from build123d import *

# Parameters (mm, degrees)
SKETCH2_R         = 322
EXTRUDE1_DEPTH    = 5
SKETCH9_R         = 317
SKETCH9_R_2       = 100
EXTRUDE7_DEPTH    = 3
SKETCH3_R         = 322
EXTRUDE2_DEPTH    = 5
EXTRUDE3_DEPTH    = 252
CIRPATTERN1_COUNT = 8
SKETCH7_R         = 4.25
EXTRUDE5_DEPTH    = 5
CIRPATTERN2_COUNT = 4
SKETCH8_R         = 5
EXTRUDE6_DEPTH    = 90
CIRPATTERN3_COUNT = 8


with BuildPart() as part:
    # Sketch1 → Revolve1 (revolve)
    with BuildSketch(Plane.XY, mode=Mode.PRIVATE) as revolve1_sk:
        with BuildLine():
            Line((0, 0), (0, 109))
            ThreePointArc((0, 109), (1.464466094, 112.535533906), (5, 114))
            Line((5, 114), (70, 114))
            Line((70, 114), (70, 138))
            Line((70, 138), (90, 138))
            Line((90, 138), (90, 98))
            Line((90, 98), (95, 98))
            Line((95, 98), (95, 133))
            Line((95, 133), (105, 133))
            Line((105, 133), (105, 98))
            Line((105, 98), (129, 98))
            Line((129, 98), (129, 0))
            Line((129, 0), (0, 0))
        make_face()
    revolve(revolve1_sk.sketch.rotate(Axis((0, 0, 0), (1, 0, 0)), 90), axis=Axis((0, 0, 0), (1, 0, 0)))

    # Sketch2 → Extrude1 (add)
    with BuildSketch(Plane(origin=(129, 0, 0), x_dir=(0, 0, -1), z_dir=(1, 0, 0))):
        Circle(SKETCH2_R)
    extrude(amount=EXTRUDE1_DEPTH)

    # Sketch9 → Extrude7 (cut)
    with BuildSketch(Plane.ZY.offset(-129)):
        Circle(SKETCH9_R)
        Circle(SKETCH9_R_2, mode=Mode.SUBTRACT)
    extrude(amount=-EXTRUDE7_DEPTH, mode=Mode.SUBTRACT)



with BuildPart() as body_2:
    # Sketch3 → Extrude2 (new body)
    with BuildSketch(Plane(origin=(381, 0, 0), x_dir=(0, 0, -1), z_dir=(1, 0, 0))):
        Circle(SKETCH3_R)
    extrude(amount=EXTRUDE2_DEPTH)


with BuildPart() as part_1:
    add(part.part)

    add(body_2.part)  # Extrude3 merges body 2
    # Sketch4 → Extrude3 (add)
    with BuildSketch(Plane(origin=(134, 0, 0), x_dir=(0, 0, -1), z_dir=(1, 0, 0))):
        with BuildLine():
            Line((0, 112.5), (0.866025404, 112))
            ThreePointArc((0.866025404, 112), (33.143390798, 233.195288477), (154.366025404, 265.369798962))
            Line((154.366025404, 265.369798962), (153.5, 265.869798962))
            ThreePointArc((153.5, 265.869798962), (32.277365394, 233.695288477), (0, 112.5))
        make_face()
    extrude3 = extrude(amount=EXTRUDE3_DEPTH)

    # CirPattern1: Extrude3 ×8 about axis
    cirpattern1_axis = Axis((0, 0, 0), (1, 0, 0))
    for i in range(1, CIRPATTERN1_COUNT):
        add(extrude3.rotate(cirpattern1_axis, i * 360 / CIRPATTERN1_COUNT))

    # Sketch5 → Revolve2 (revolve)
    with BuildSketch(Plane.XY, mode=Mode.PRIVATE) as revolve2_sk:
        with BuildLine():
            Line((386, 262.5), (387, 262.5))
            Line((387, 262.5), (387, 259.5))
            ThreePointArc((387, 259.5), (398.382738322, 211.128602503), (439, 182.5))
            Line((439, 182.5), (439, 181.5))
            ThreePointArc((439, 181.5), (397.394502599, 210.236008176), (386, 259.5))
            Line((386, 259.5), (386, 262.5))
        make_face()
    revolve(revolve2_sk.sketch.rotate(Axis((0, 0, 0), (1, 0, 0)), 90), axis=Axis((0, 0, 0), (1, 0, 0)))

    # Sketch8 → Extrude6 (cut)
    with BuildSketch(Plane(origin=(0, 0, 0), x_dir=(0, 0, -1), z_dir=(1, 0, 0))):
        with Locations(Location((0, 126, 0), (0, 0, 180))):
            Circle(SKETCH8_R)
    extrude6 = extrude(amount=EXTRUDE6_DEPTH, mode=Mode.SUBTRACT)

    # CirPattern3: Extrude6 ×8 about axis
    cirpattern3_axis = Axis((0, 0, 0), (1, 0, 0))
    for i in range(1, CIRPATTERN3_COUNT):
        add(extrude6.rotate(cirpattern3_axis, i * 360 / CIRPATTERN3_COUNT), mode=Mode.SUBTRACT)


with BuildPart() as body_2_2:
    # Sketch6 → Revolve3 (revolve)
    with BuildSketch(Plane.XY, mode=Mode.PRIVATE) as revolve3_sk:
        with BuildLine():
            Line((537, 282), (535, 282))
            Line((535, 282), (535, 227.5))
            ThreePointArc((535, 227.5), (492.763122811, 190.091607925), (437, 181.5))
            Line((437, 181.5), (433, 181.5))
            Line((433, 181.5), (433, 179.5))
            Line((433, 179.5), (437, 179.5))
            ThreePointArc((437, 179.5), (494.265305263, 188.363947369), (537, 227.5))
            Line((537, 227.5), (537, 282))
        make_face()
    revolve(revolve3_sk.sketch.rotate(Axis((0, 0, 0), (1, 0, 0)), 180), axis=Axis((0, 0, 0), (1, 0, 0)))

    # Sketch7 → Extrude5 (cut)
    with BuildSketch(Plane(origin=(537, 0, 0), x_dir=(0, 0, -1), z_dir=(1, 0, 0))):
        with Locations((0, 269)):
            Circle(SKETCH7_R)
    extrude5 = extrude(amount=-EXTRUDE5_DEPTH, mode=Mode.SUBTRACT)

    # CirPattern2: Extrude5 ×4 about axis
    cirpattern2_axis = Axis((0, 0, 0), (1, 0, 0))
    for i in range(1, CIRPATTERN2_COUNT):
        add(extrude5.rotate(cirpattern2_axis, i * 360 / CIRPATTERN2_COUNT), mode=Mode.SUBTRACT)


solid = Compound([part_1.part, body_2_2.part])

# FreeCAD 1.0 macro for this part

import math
import FreeCAD as App
import Part
import Sketcher
from FreeCAD import Vector
Q = App.Units.Quantity

doc = App.newDocument("Part")
params = doc.addObject("Spreadsheet::Sheet", "Params")
for row, (alias, value) in enumerate([
    ("sketch1_radius", "5 mm"),
    ("sketch1_width", "129 mm"),
    ("sketch1_width2", "24 mm"),
    ("sketch1_width3", "10 mm"),
    ("sketch1_width4", "5 mm"),
    ("revolution_angle", "360 deg"),
    ("sketch2_diameter", "644 mm"),
    ("pad1_length", "5 mm"),
    ("sketch3_diameter", "634 mm"),
    ("sketch3_diameter2", "200 mm"),
    ("pocket1_length", "3 mm"),
    ("sketch4_diameter", "644 mm"),
    ("pad2_length", "5 mm"),
    ("sketch5_radius", "125 mm"),
    ("sketch5_length", "1 mm"),
    ("pad3_length", "252 mm"),
    ("sketch6_radius", "70 mm"),
    ("sketch6_width", "1 mm"),
    ("sketch6_height", "3 mm"),
    ("revolution2_angle", "360 deg"),
    ("sketch7_diameter", "10 mm"),
    ("pocket2_length", "90 mm"),
    ("sketch8_radius", "100 mm"),
    ("sketch8_width", "2 mm"),
    ("sketch8_width2", "4 mm"),
    ("sketch8_height", "54.5 mm"),
    ("revolution3_angle", "360 deg"),
    ("sketch9_diameter", "8.5 mm"),
    ("pocket3_length", "5 mm"),
], start=1):
    params.set(f"A{row}", alias)
    params.set(f"B{row}", "=" + value)
    params.setAlias(f"B{row}", alias)

body = doc.addObject("PartDesign::Body", "Body")

# Sketch on XY plane
sketch1 = body.newObject("Sketcher::SketchObject", "Sketch")
sketch1.AttachmentSupport = (doc.getObject("XY_Plane"), [""])
sketch1.MapMode = "FlatFace"
sketch1.addGeometry([
    Part.LineSegment(Vector(0, 109, 0), Vector(0, 0, 0)),  # 0
    Part.LineSegment(Vector(0, 0, 0), Vector(129, 0, 0)),  # 1
    Part.LineSegment(Vector(129, 0, 0), Vector(129, 98, 0)),  # 2
    Part.LineSegment(Vector(129, 98, 0), Vector(105, 98, 0)),  # 3
    Part.LineSegment(Vector(105, 98, 0), Vector(105, 133, 0)),  # 4
    Part.LineSegment(Vector(105, 133, 0), Vector(95, 133, 0)),  # 5
    Part.LineSegment(Vector(95, 133, 0), Vector(95, 98, 0)),  # 6
    Part.LineSegment(Vector(95, 98, 0), Vector(90, 98, 0)),  # 7
    Part.LineSegment(Vector(90, 98, 0), Vector(90, 138, 0)),  # 8
    Part.LineSegment(Vector(90, 138, 0), Vector(70, 138, 0)),  # 9
    Part.LineSegment(Vector(70, 138, 0), Vector(70, 114, 0)),  # 10
    Part.LineSegment(Vector(70, 114, 0), Vector(5, 114, 0)),  # 11
    Part.ArcOfCircle(Part.Circle(Vector(5, 109, 0), Vector(0, 0, 1), 5), math.radians(90), math.radians(180)),  # 12
], False)
sketch1.addConstraint([
    Sketcher.Constraint("Coincident", 0, 2, 1, 1),
    Sketcher.Constraint("Coincident", 1, 2, 2, 1),
    Sketcher.Constraint("Coincident", 2, 2, 3, 1),
    Sketcher.Constraint("Coincident", 3, 2, 4, 1),
    Sketcher.Constraint("Coincident", 4, 2, 5, 1),
    Sketcher.Constraint("Coincident", 5, 2, 6, 1),
    Sketcher.Constraint("Coincident", 6, 2, 7, 1),
    Sketcher.Constraint("Coincident", 7, 2, 8, 1),
    Sketcher.Constraint("Coincident", 8, 2, 9, 1),
    Sketcher.Constraint("Coincident", 9, 2, 10, 1),
    Sketcher.Constraint("Coincident", 10, 2, 11, 1),
    Sketcher.Constraint("Tangent", 11, 2, 12, 1),
    Sketcher.Constraint("Tangent", 12, 2, 0, 1),
    Sketcher.Constraint("Vertical", 0),
    Sketcher.Constraint("Horizontal", 1),
    Sketcher.Constraint("Vertical", 2),
    Sketcher.Constraint("Horizontal", 3),
    Sketcher.Constraint("Vertical", 4),
    Sketcher.Constraint("Horizontal", 5),
    Sketcher.Constraint("Vertical", 6),
    Sketcher.Constraint("Horizontal", 7),
    Sketcher.Constraint("Vertical", 8),
    Sketcher.Constraint("Horizontal", 9),
    Sketcher.Constraint("Vertical", 10),
    Sketcher.Constraint("Horizontal", 11),
    Sketcher.Constraint("Coincident", 0, 2, -1, 1),
    Sketcher.Constraint("Horizontal", 3, 2, 6, 2),
    Sketcher.Constraint("Equal", 3, 10),
    Sketcher.Constraint("Radius", 12, Q("5 mm")),
    Sketcher.Constraint("DistanceX", 1, 1, 1, 2, Q("129 mm")),
    Sketcher.Constraint("DistanceX", 3, 2, 3, 1, Q("24 mm")),
    Sketcher.Constraint("DistanceX", 5, 2, 5, 1, Q("10 mm")),
    Sketcher.Constraint("DistanceX", 7, 2, 7, 1, Q("5 mm")),
    Sketcher.Constraint("DistanceX", 9, 2, 9, 1, Q("20 mm")),
    Sketcher.Constraint("DistanceY", 0, 2, 0, 1, Q("109 mm")),
    Sketcher.Constraint("DistanceY", 2, 1, 2, 2, Q("98 mm")),
    Sketcher.Constraint("DistanceY", 4, 1, 4, 2, Q("35 mm")),
])
sketch1.setExpression("Constraints[28]", "Params.sketch1_radius")
sketch1.setExpression("Constraints[29]", "Params.sketch1_width")
sketch1.setExpression("Constraints[30]", "Params.sketch1_width2")
sketch1.setExpression("Constraints[31]", "Params.sketch1_width3")
sketch1.setExpression("Constraints[32]", "Params.sketch1_width4")
revolution = body.newObject("PartDesign::Revolution", "Revolution")
revolution.Profile = sketch1
revolution.ReferenceAxis = (sketch1, ["H_Axis"])
revolution.setExpression("Angle", "Params.revolution_angle")

# Sketch on YZ plane
sketch2 = body.newObject("Sketcher::SketchObject", "Sketch001")
sketch2.AttachmentSupport = (doc.getObject("YZ_Plane"), [""])
sketch2.MapMode = "FlatFace"
sketch2.AttachmentOffset = App.Placement(Vector(0, 0, 129), App.Rotation())
sketch2.addGeometry(Part.Circle(Vector(0, 0, 0), Vector(0, 0, 1), 322), False)
sketch2.addConstraint([
    Sketcher.Constraint("Coincident", 0, 3, -1, 1),
    Sketcher.Constraint("Diameter", 0, Q("644 mm")),
])
sketch2.setExpression("Constraints[1]", "Params.sketch2_diameter")
pad1 = body.newObject("PartDesign::Pad", "Pad")
pad1.Profile = sketch2
pad1.setExpression("Length", "Params.pad1_length")

# Sketch on YZ plane
sketch3 = body.newObject("Sketcher::SketchObject", "Sketch002")
sketch3.AttachmentSupport = (doc.getObject("YZ_Plane"), [""])
sketch3.MapMode = "FlatFace"
sketch3.AttachmentOffset = App.Placement(Vector(0, 0, 129), App.Rotation())
sketch3.addGeometry([
    Part.Circle(Vector(0, 0, 0), Vector(0, 0, 1), 317),
    Part.Circle(Vector(0, 0, 0), Vector(0, 0, 1), 100),
], False)
sketch3.addConstraint([
    Sketcher.Constraint("Coincident", 0, 3, -1, 1),
    Sketcher.Constraint("Coincident", 1, 3, -1, 1),
    Sketcher.Constraint("Diameter", 0, Q("634 mm")),
    Sketcher.Constraint("Diameter", 1, Q("200 mm")),
])
sketch3.setExpression("Constraints[2]", "Params.sketch3_diameter")
sketch3.setExpression("Constraints[3]", "Params.sketch3_diameter2")
pocket1 = body.newObject("PartDesign::Pocket", "Pocket")
pocket1.Profile = sketch3
pocket1.setExpression("Length", "Params.pocket1_length")
pocket1.Reversed = True
body2 = doc.addObject("PartDesign::Body", "Body001")

# Sketch on YZ plane
sketch4 = body2.newObject("Sketcher::SketchObject", "Sketch003")
sketch4.AttachmentSupport = (doc.getObject("YZ_Plane001"), [""])
sketch4.MapMode = "FlatFace"
sketch4.AttachmentOffset = App.Placement(Vector(0, 0, 381), App.Rotation())
sketch4.addGeometry(Part.Circle(Vector(0, 0, 0), Vector(0, 0, 1), 322), False)
sketch4.addConstraint([
    Sketcher.Constraint("Coincident", 0, 3, -1, 1),
    Sketcher.Constraint("Diameter", 0, Q("644 mm")),
])
sketch4.setExpression("Constraints[1]", "Params.sketch4_diameter")
pad2 = body2.newObject("PartDesign::Pad", "Pad001")
pad2.Profile = sketch4
pad2.setExpression("Length", "Params.pad2_length")
body.AllowCompound = True
doc.recompute()

boolean = body.newObject("PartDesign::Boolean", "Boolean")
boolean.Type = "Fuse"
boolean.addObjects([body2])

# Sketch on YZ plane
sketch5 = body.newObject("Sketcher::SketchObject", "Sketch004")
sketch5.AttachmentSupport = (doc.getObject("YZ_Plane"), [""])
sketch5.MapMode = "FlatFace"
sketch5.AttachmentOffset = App.Placement(Vector(0, 0, 134), App.Rotation())
sketch5.addGeometry([
    Part.LineSegment(Vector(112.5, 0, 0), Vector(112, -0.9, 0)),
    Part.ArcOfCircle(Part.Circle(Vector(144.8, -121.5, 0), Vector(0, 0, 1), 125), math.radians(-15), math.radians(105)),
    Part.LineSegment(Vector(265.4, -154.4, 0), Vector(265.9, -153.5, 0)),
    Part.ArcOfCircle(Part.Circle(Vector(145.3, -120.6, 0), Vector(0, 0, 1), 125), math.radians(-15), math.radians(105)),
], False)
sketch5.addConstraint([
    Sketcher.Constraint("Coincident", 0, 2, 1, 2),
    Sketcher.Constraint("Coincident", 1, 1, 2, 1),
    Sketcher.Constraint("Coincident", 2, 2, 3, 1),
    Sketcher.Constraint("Coincident", 3, 2, 0, 1),
    Sketcher.Constraint("Equal", 1, 3),
    Sketcher.Constraint("PointOnObject", 3, 2, -1),
    Sketcher.Constraint("Parallel", 0, 2),
    Sketcher.Constraint("Equal", 0, 2),
    Sketcher.Constraint("Radius", 1, Q("125 mm")),
    Sketcher.Constraint("Angle", 0, Q("-120 deg")),
    Sketcher.Constraint("Distance", 0, Q("1 mm")),
    Sketcher.Constraint("DistanceX", -1, 1, 0, 2, Q("112 mm")),
    Sketcher.Constraint("DistanceY", 2, 2, -1, 1, Q("153.5 mm")),
    Sketcher.Constraint("DistanceX", -1, 1, 1, 1, Q("265.369799 mm")),
])
sketch5.setExpression("Constraints[8]", "Params.sketch5_radius")
sketch5.setExpression("Constraints[10]", "Params.sketch5_length")
pad3 = body.newObject("PartDesign::Pad", "Pad002")
pad3.Profile = sketch5
pad3.setExpression("Length", "Params.pad3_length")
doc.recompute()

polarpattern = body.newObject("PartDesign::PolarPattern", "PolarPattern")
polarpattern.Originals = [pad3]
polarpattern.Axis = (doc.getObject("X_Axis"), [""])
polarpattern.Angle = 360
polarpattern.Occurrences = 8
body.Tip = polarpattern

# Sketch on XY plane
sketch6 = body.newObject("Sketcher::SketchObject", "Sketch005")
sketch6.AttachmentSupport = (doc.getObject("XY_Plane"), [""])
sketch6.MapMode = "FlatFace"
sketch6.addGeometry([
    Part.LineSegment(Vector(387, 262.5, 0), Vector(386, 262.5, 0)),  # 0
    Part.LineSegment(Vector(386, 262.5, 0), Vector(386, 259.5, 0)),  # 1
    Part.ArcOfCircle(Part.Circle(Vector(455.3, 249.6, 0), Vector(0, 0, 1), 70), math.radians(172), math.radians(257)),  # 2
    Part.LineSegment(Vector(439, 181.5, 0), Vector(439, 182.5, 0)),  # 3
    Part.ArcOfCircle(Part.Circle(Vector(456.4, 250.3, 0), Vector(0, 0, 1), 70), math.radians(172), math.radians(256)),  # 4
    Part.LineSegment(Vector(387, 259.5, 0), Vector(387, 262.5, 0)),  # 5
], False)
sketch6.addConstraint([
    Sketcher.Constraint("Coincident", 0, 2, 1, 1),
    Sketcher.Constraint("Coincident", 1, 2, 2, 1),
    Sketcher.Constraint("Coincident", 2, 2, 3, 1),
    Sketcher.Constraint("Coincident", 3, 2, 4, 2),
    Sketcher.Constraint("Coincident", 4, 1, 5, 1),
    Sketcher.Constraint("Coincident", 5, 2, 0, 1),
    Sketcher.Constraint("Horizontal", 0),
    Sketcher.Constraint("Vertical", 1),
    Sketcher.Constraint("Vertical", 3),
    Sketcher.Constraint("Vertical", 5),
    Sketcher.Constraint("Equal", 2, 4),
    Sketcher.Constraint("Horizontal", 1, 2, 4, 1),
    Sketcher.Constraint("Equal", 0, 3),
    Sketcher.Constraint("Radius", 2, Q("70 mm")),
    Sketcher.Constraint("DistanceX", 0, 2, 0, 1, Q("1 mm")),
    Sketcher.Constraint("DistanceY", 1, 2, 1, 1, Q("3 mm")),
    Sketcher.Constraint("DistanceX", -1, 1, 0, 2, Q("386 mm")),
    Sketcher.Constraint("DistanceX", -1, 1, 2, 2, Q("439 mm")),
    Sketcher.Constraint("DistanceY", 2, 2, 1, 2, Q("78 mm")),
    Sketcher.Constraint("DistanceY", -1, 1, 0, 2, Q("262.5 mm")),
])
sketch6.setExpression("Constraints[13]", "Params.sketch6_radius")
sketch6.setExpression("Constraints[14]", "Params.sketch6_width")
sketch6.setExpression("Constraints[15]", "Params.sketch6_height")
revolution2 = body.newObject("PartDesign::Revolution", "Revolution001")
revolution2.Profile = sketch6
revolution2.ReferenceAxis = (sketch6, ["H_Axis"])
revolution2.setExpression("Angle", "Params.revolution2_angle")

# Sketch on YZ plane
sketch7 = body.newObject("Sketcher::SketchObject", "Sketch006")
sketch7.AttachmentSupport = (doc.getObject("YZ_Plane"), [""])
sketch7.MapMode = "FlatFace"
sketch7.addGeometry(Part.Circle(Vector(126, 0, 0), Vector(0, 0, 1), 5), False)
sketch7.addConstraint([
    Sketcher.Constraint("PointOnObject", 0, 3, -1),
    Sketcher.Constraint("Diameter", 0, Q("10 mm")),
    Sketcher.Constraint("DistanceX", -1, 1, 0, 3, Q("126 mm")),
])
sketch7.setExpression("Constraints[1]", "Params.sketch7_diameter")
pocket2 = body.newObject("PartDesign::Pocket", "Pocket001")
pocket2.Profile = sketch7
pocket2.setExpression("Length", "Params.pocket2_length")
pocket2.Reversed = True
doc.recompute()

polarpattern2 = body.newObject("PartDesign::PolarPattern", "PolarPattern001")
polarpattern2.Originals = [pocket2]
polarpattern2.Axis = (doc.getObject("X_Axis"), [""])
polarpattern2.Angle = 360
polarpattern2.Occurrences = 8
body.Tip = polarpattern2
body3 = doc.addObject("PartDesign::Body", "Body002")

# Sketch on XY plane
sketch8 = body3.newObject("Sketcher::SketchObject", "Sketch007")
sketch8.AttachmentSupport = (doc.getObject("XY_Plane002"), [""])
sketch8.MapMode = "FlatFace"
sketch8.addGeometry([
    Part.LineSegment(Vector(537, 282, 0), Vector(535, 282, 0)),  # 0
    Part.LineSegment(Vector(535, 282, 0), Vector(535, 227.5, 0)),  # 1
    Part.ArcOfCircle(Part.Circle(Vector(450.3, 280.6, 0), Vector(0, 0, 1), 100), math.radians(-98), math.radians(-32)),  # 2
    Part.LineSegment(Vector(437, 181.5, 0), Vector(433, 181.5, 0)),  # 3
    Part.LineSegment(Vector(433, 181.5, 0), Vector(433, 179.5, 0)),  # 4
    Part.LineSegment(Vector(433, 179.5, 0), Vector(437, 179.5, 0)),  # 5
    Part.ArcOfCircle(Part.Circle(Vector(451, 278.5, 0), Vector(0, 0, 1), 100), math.radians(-98), math.radians(-31)),  # 6
    Part.LineSegment(Vector(537, 227.5, 0), Vector(537, 282, 0)),  # 7
], False)
sketch8.addConstraint([
    Sketcher.Constraint("Coincident", 0, 2, 1, 1),
    Sketcher.Constraint("Coincident", 1, 2, 2, 2),
    Sketcher.Constraint("Coincident", 2, 1, 3, 1),
    Sketcher.Constraint("Coincident", 3, 2, 4, 1),
    Sketcher.Constraint("Coincident", 4, 2, 5, 1),
    Sketcher.Constraint("Coincident", 5, 2, 6, 1),
    Sketcher.Constraint("Coincident", 6, 2, 7, 1),
    Sketcher.Constraint("Coincident", 7, 2, 0, 1),
    Sketcher.Constraint("Horizontal", 0),
    Sketcher.Constraint("Vertical", 1),
    Sketcher.Constraint("Horizontal", 3),
    Sketcher.Constraint("Vertical", 4),
    Sketcher.Constraint("Horizontal", 5),
    Sketcher.Constraint("Vertical", 7),
    Sketcher.Constraint("Equal", 2, 6),
    Sketcher.Constraint("Horizontal", 1, 2, 6, 2),
    Sketcher.Constraint("Vertical", 2, 1, 5, 2),
    Sketcher.Constraint("Equal", 0, 4),
    Sketcher.Constraint("Radius", 2, Q("100 mm")),
    Sketcher.Constraint("DistanceX", 0, 2, 0, 1, Q("2 mm")),
    Sketcher.Constraint("DistanceX", 3, 2, 3, 1, Q("4 mm")),
    Sketcher.Constraint("DistanceY", 1, 2, 1, 1, Q("54.5 mm")),
    Sketcher.Constraint("DistanceX", -1, 1, 0, 2, Q("535 mm")),
    Sketcher.Constraint("DistanceY", -1, 1, 0, 2, Q("282 mm")),
    Sketcher.Constraint("DistanceX", -1, 1, 2, 1, Q("437 mm")),
    Sketcher.Constraint("DistanceY", 2, 1, 1, 2, Q("46 mm")),
])
sketch8.setExpression("Constraints[18]", "Params.sketch8_radius")
sketch8.setExpression("Constraints[19]", "Params.sketch8_width")
sketch8.setExpression("Constraints[20]", "Params.sketch8_width2")
sketch8.setExpression("Constraints[21]", "Params.sketch8_height")
revolution3 = body3.newObject("PartDesign::Revolution", "Revolution002")
revolution3.Profile = sketch8
revolution3.ReferenceAxis = (sketch8, ["H_Axis"])
revolution3.setExpression("Angle", "Params.revolution3_angle")

# Sketch on YZ plane
sketch9 = body3.newObject("Sketcher::SketchObject", "Sketch008")
sketch9.AttachmentSupport = (doc.getObject("YZ_Plane002"), [""])
sketch9.MapMode = "FlatFace"
sketch9.AttachmentOffset = App.Placement(Vector(0, 0, 537), App.Rotation())
sketch9.addGeometry(Part.Circle(Vector(269, 0, 0), Vector(0, 0, 1), 4.2), False)
sketch9.addConstraint([
    Sketcher.Constraint("PointOnObject", 0, 3, -1),
    Sketcher.Constraint("Diameter", 0, Q("8.5 mm")),
    Sketcher.Constraint("DistanceX", -1, 1, 0, 3, Q("269 mm")),
])
sketch9.setExpression("Constraints[1]", "Params.sketch9_diameter")
pocket3 = body3.newObject("PartDesign::Pocket", "Pocket002")
pocket3.Profile = sketch9
pocket3.setExpression("Length", "Params.pocket3_length")
doc.recompute()

polarpattern3 = body3.newObject("PartDesign::PolarPattern", "PolarPattern002")
polarpattern3.Originals = [pocket3]
polarpattern3.Axis = (doc.getObject("X_Axis002"), [""])
polarpattern3.Angle = 360
polarpattern3.Occurrences = 4
body3.Tip = polarpattern3

doc.recompute()
